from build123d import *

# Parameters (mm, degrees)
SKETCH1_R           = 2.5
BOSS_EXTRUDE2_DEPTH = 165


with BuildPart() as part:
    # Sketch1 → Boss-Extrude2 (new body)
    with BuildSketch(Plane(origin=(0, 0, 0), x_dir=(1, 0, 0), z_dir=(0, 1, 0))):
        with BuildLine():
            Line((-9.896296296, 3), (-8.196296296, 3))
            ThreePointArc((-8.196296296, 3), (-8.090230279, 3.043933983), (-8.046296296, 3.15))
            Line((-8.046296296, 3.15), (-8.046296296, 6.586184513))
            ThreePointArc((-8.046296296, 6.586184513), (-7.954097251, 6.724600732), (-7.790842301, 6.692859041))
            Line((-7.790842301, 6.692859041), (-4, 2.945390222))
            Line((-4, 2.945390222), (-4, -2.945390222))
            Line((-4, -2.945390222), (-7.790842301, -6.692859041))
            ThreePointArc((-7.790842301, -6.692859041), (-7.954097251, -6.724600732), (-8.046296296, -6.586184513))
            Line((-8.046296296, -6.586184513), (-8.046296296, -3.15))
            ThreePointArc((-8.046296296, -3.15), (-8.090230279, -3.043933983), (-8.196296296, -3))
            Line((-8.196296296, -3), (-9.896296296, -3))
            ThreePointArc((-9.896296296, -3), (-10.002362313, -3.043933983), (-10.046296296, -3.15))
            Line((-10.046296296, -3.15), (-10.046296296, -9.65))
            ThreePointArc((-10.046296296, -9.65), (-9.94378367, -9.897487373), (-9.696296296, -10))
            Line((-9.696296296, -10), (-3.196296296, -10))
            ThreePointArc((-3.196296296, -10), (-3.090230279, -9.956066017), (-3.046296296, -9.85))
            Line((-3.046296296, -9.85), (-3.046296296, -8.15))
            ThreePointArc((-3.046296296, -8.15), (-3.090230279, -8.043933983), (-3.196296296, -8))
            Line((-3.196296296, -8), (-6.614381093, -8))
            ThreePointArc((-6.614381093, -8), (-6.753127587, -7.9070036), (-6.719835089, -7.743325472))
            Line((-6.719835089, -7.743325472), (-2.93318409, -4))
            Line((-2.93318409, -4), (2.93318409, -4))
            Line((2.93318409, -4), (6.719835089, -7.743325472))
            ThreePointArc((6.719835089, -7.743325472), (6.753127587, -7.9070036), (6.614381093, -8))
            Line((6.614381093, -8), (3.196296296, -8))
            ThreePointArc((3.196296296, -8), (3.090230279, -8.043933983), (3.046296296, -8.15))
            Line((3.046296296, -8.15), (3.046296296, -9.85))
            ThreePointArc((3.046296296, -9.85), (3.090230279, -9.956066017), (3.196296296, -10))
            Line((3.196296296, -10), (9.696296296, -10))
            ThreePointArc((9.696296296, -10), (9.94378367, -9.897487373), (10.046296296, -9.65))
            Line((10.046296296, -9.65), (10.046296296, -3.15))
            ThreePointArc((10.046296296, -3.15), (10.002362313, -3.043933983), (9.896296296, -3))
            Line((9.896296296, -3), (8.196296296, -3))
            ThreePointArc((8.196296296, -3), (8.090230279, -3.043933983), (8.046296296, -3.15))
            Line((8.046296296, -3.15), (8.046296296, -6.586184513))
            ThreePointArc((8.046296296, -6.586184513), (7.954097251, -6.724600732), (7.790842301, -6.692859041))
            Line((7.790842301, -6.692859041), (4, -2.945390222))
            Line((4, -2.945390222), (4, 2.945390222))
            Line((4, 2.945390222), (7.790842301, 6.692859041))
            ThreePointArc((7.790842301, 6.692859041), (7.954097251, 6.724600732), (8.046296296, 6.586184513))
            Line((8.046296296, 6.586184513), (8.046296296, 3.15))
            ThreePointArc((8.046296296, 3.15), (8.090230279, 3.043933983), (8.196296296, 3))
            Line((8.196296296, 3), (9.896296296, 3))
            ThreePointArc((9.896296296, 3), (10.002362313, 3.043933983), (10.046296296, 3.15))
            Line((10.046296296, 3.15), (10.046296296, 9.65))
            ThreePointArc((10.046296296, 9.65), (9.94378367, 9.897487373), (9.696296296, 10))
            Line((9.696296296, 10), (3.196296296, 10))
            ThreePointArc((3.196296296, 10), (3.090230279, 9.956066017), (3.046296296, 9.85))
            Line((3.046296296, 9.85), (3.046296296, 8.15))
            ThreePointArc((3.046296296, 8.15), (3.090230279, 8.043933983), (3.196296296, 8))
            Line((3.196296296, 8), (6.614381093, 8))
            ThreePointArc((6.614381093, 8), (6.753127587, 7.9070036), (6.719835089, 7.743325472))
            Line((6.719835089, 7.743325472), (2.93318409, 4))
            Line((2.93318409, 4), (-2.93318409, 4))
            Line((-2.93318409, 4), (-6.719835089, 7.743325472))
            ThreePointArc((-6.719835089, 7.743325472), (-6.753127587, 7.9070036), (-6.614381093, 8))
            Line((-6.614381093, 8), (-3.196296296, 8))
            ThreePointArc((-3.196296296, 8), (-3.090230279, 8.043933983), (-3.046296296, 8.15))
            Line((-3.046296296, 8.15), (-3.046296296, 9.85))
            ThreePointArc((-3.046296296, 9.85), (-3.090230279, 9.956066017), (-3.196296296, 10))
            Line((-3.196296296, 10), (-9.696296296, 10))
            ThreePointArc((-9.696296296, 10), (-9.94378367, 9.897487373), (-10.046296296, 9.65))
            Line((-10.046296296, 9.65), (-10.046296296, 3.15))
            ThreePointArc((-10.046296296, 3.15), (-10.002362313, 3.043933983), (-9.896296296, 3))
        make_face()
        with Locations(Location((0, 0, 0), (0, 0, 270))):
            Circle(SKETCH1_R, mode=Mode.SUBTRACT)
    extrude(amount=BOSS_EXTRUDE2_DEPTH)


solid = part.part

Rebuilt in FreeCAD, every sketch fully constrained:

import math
import FreeCAD as App
import Part
import Sketcher
Q = App.Units.Quantity

doc = App.newDocument("Part")
body = doc.addObject("PartDesign::Body", "Body")

sketch1 = body.newObject("Sketcher::SketchObject", "Sketch")
sketch1.AttachmentSupport = (doc.getObject("XZ_Plane"), [""])
sketch1.MapMode = "FlatFace"
sketch1.addGeometry(Part.LineSegment(App.Vector(-9.896296, -3, 0), App.Vector(-8.196296, -3, 0)), False)
sketch1.addGeometry(Part.ArcOfCircle(Part.Circle(App.Vector(-8.196296, -3.15, 0), App.Vector(0, 0, 1), 0.15), math.radians(0), math.radians(90)), False)
sketch1.addGeometry(Part.LineSegment(App.Vector(-8.046296, -3.15, 0), App.Vector(-8.046296, -6.586185, 0)), False)
sketch1.addGeometry(Part.ArcOfCircle(Part.Circle(App.Vector(-7.896296, -6.586185, 0), App.Vector(0, 0, 1), 0.15), math.radians(180), math.radians(314.670338)), False)
sketch1.addGeometry(Part.LineSegment(App.Vector(-7.790842, -6.692859, 0), App.Vector(-4, -2.94539, 0)), False)
sketch1.addGeometry(Part.LineSegment(App.Vector(-4, -2.94539, 0), App.Vector(-4, 2.94539, 0)), False)
sketch1.addGeometry(Part.LineSegment(App.Vector(-4, 2.94539, 0), App.Vector(-7.790842, 6.692859, 0)), False)
sketch1.addGeometry(Part.ArcOfCircle(Part.Circle(App.Vector(-7.896296, 6.586185, 0), App.Vector(0, 0, 1), 0.15), math.radians(45.329662), math.radians(180)), False)
sketch1.addGeometry(Part.LineSegment(App.Vector(-8.046296, 6.586185, 0), App.Vector(-8.046296, 3.15, 0)), False)
sketch1.addGeometry(Part.ArcOfCircle(Part.Circle(App.Vector(-8.196296, 3.15, 0), App.Vector(0, 0, 1), 0.15), math.radians(-90), math.radians(0)), False)
sketch1.addGeometry(Part.LineSegment(App.Vector(-8.196296, 3, 0), App.Vector(-9.896296, 3, 0)), False)
sketch1.addGeometry(Part.ArcOfCircle(Part.Circle(App.Vector(-9.896296, 3.15, 0), App.Vector(0, 0, 1), 0.15), math.radians(-180), math.radians(-90)), False)
sketch1.addGeometry(Part.LineSegment(App.Vector(-10.046296, 3.15, 0), App.Vector(-10.046296, 9.65, 0)), False)
sketch1.addGeometry(Part.ArcOfCircle(Part.Circle(App.Vector(-9.696296, 9.65, 0), App.Vector(0, 0, 1), 0.35), math.radians(90), math.radians(180)), False)
sketch1.addGeometry(Part.LineSegment(App.Vector(-9.696296, 10, 0), App.Vector(-3.196296, 10, 0)), False)
sketch1.addGeometry(Part.ArcOfCircle(Part.Circle(App.Vector(-3.196296, 9.85, 0), App.Vector(0, 0, 1), 0.15), math.radians(0), math.radians(90)), False)
sketch1.addGeometry(Part.LineSegment(App.Vector(-3.046296, 9.85, 0), App.Vector(-3.046296, 8.15, 0)), False)
sketch1.addGeometry(Part.ArcOfCircle(Part.Circle(App.Vector(-3.196296, 8.15, 0), App.Vector(0, 0, 1), 0.15), math.radians(-90), math.radians(0)), False)
sketch1.addGeometry(Part.LineSegment(App.Vector(-3.196296, 8, 0), App.Vector(-6.614381, 8, 0)), False)
sketch1.addGeometry(Part.ArcOfCircle(Part.Circle(App.Vector(-6.614381, 7.85, 0), App.Vector(0, 0, 1), 0.15), math.radians(90), math.radians(225.329661)), False)
sketch1.addGeometry(Part.LineSegment(App.Vector(-6.719835, 7.743325, 0), App.Vector(-2.933184, 4, 0)), False)
sketch1.addGeometry(Part.LineSegment(App.Vector(-2.933184, 4, 0), App.Vector(2.933184, 4, 0)), False)
sketch1.addGeometry(Part.LineSegment(App.Vector(2.933184, 4, 0), App.Vector(6.719835, 7.743325, 0)), False)
sketch1.addGeometry(Part.ArcOfCircle(Part.Circle(App.Vector(6.614381, 7.85, 0), App.Vector(0, 0, 1), 0.15), math.radians(-45.329661), math.radians(90)), False)
sketch1.addGeometry(Part.LineSegment(App.Vector(6.614381, 8, 0), App.Vector(3.196296, 8, 0)), False)
sketch1.addGeometry(Part.ArcOfCircle(Part.Circle(App.Vector(3.196296, 8.15, 0), App.Vector(0, 0, 1), 0.15), math.radians(-180), math.radians(-90)), False)
sketch1.addGeometry(Part.LineSegment(App.Vector(3.046296, 8.15, 0), App.Vector(3.046296, 9.85, 0)), False)
sketch1.addGeometry(Part.ArcOfCircle(Part.Circle(App.Vector(3.196296, 9.85, 0), App.Vector(0, 0, 1), 0.15), math.radians(90), math.radians(180)), False)
sketch1.addGeometry(Part.LineSegment(App.Vector(3.196296, 10, 0), App.Vector(9.696296, 10, 0)), False)
sketch1.addGeometry(Part.ArcOfCircle(Part.Circle(App.Vector(9.696296, 9.65, 0), App.Vector(0, 0, 1), 0.35), math.radians(0), math.radians(90)), False)
sketch1.addGeometry(Part.LineSegment(App.Vector(10.046296, 9.65, 0), App.Vector(10.046296, 3.15, 0)), False)
sketch1.addGeometry(Part.ArcOfCircle(Part.Circle(App.Vector(9.896296, 3.15, 0), App.Vector(0, 0, 1), 0.15), math.radians(-90), math.radians(0)), False)
sketch1.addGeometry(Part.LineSegment(App.Vector(9.896296, 3, 0), App.Vector(8.196296, 3, 0)), False)
sketch1.addGeometry(Part.ArcOfCircle(Part.Circle(App.Vector(8.196296, 3.15, 0), App.Vector(0, 0, 1), 0.15), math.radians(-180), math.radians(-90)), False)
sketch1.addGeometry(Part.LineSegment(App.Vector(8.046296, 3.15, 0), App.Vector(8.046296, 6.586185, 0)), False)
sketch1.addGeometry(Part.ArcOfCircle(Part.Circle(App.Vector(7.896296, 6.586185, 0), App.Vector(0, 0, 1), 0.15), math.radians(0), math.radians(134.670338)), False)
sketch1.addGeometry(Part.LineSegment(App.Vector(7.790842, 6.692859, 0), App.Vector(4, 2.94539, 0)), False)
sketch1.addGeometry(Part.LineSegment(App.Vector(4, 2.94539, 0), App.Vector(4, -2.94539, 0)), False)
sketch1.addGeometry(Part.LineSegment(App.Vector(4, -2.94539, 0), App.Vector(7.790842, -6.692859, 0)), False)
sketch1.addGeometry(Part.ArcOfCircle(Part.Circle(App.Vector(7.896296, -6.586185, 0), App.Vector(0, 0, 1), 0.15), math.radians(-134.670338), math.radians(0)), False)
sketch1.addGeometry(Part.LineSegment(App.Vector(8.046296, -6.586185, 0), App.Vector(8.046296, -3.15, 0)), False)
sketch1.addGeometry(Part.ArcOfCircle(Part.Circle(App.Vector(8.196296, -3.15, 0), App.Vector(0, 0, 1), 0.15), math.radians(90), math.radians(180)), False)
sketch1.addGeometry(Part.LineSegment(App.Vector(8.196296, -3, 0), App.Vector(9.896296, -3, 0)), False)
sketch1.addGeometry(Part.ArcOfCircle(Part.Circle(App.Vector(9.896296, -3.15, 0), App.Vector(0, 0, 1), 0.15), math.radians(0), math.radians(90)), False)
sketch1.addGeometry(Part.LineSegment(App.Vector(10.046296, -3.15, 0), App.Vector(10.046296, -9.65, 0)), False)
sketch1.addGeometry(Part.ArcOfCircle(Part.Circle(App.Vector(9.696296, -9.65, 0), App.Vector(0, 0, 1), 0.35), math.radians(-90), math.radians(0)), False)
sketch1.addGeometry(Part.LineSegment(App.Vector(9.696296, -10, 0), App.Vector(3.196296, -10, 0)), False)
sketch1.addGeometry(Part.ArcOfCircle(Part.Circle(App.Vector(3.196296, -9.85, 0), App.Vector(0, 0, 1), 0.15), math.radians(-180), math.radians(-90)), False)
sketch1.addGeometry(Part.LineSegment(App.Vector(3.046296, -9.85, 0), App.Vector(3.046296, -8.15, 0)), False)
sketch1.addGeometry(Part.ArcOfCircle(Part.Circle(App.Vector(3.196296, -8.15, 0), App.Vector(0, 0, 1), 0.15), math.radians(90), math.radians(180)), False)
sketch1.addGeometry(Part.LineSegment(App.Vector(3.196296, -8, 0), App.Vector(6.614381, -8, 0)), False)
sketch1.addGeometry(Part.ArcOfCircle(Part.Circle(App.Vector(6.614381, -7.85, 0), App.Vector(0, 0, 1), 0.15), math.radians(-90), math.radians(45.329661)), False)
sketch1.addGeometry(Part.LineSegment(App.Vector(6.719835, -7.743325, 0), App.Vector(2.933184, -4, 0)), False)
sketch1.addGeometry(Part.LineSegment(App.Vector(2.933184, -4, 0), App.Vector(-2.933184, -4, 0)), False)
sketch1.addGeometry(Part.LineSegment(App.Vector(-2.933184, -4, 0), App.Vector(-6.719835, -7.743325, 0)), False)
sketch1.addGeometry(Part.ArcOfCircle(Part.Circle(App.Vector(-6.614381, -7.85, 0), App.Vector(0, 0, 1), 0.15), math.radians(134.670339), math.radians(270)), False)
sketch1.addGeometry(Part.LineSegment(App.Vector(-6.614381, -8, 0), App.Vector(-3.196296, -8, 0)), False)
sketch1.addGeometry(Part.ArcOfCircle(Part.Circle(App.Vector(-3.196296, -8.15, 0), App.Vector(0, 0, 1), 0.15), math.radians(0), math.radians(90)), False)
sketch1.addGeometry(Part.LineSegment(App.Vector(-3.046296, -8.15, 0), App.Vector(-3.046296, -9.85, 0)), False)
sketch1.addGeometry(Part.ArcOfCircle(Part.Circle(App.Vector(-3.196296, -9.85, 0), App.Vector(0, 0, 1), 0.15), math.radians(-90), math.radians(0)), False)
sketch1.addGeometry(Part.LineSegment(App.Vector(-3.196296, -10, 0), App.Vector(-9.696296, -10, 0)), False)
sketch1.addGeometry(Part.ArcOfCircle(Part.Circle(App.Vector(-9.696296, -9.65, 0), App.Vector(0, 0, 1), 0.35), math.radians(180), math.radians(270)), False)
sketch1.addGeometry(Part.LineSegment(App.Vector(-10.046296, -9.65, 0), App.Vector(-10.046296, -3.15, 0)), False)
sketch1.addGeometry(Part.ArcOfCircle(Part.Circle(App.Vector(-9.896296, -3.15, 0), App.Vector(0, 0, 1), 0.15), math.radians(90), math.radians(180)), False)
sketch1.addGeometry(Part.Circle(App.Vector(0, 0, 0), App.Vector(0, 0, 1), 2.5), False)
sketch1.addConstraint(Sketcher.Constraint("Tangent", 0, 2, 1, 2))
sketch1.addConstraint(Sketcher.Constraint("Tangent", 1, 1, 2, 1))
sketch1.addConstraint(Sketcher.Constraint("Tangent", 2, 2, 3, 1))
sketch1.addConstraint(Sketcher.Constraint("Tangent", 3, 2, 4, 1))
sketch1.addConstraint(Sketcher.Constraint("Coincident", 4, 2, 5, 1))
sketch1.addConstraint(Sketcher.Constraint("Coincident", 5, 2, 6, 1))
sketch1.addConstraint(Sketcher.Constraint("Tangent", 6, 2, 7, 1))
sketch1.addConstraint(Sketcher.Constraint("Tangent", 7, 2, 8, 1))
sketch1.addConstraint(Sketcher.Constraint("Tangent", 8, 2, 9, 2))
sketch1.addConstraint(Sketcher.Constraint("Tangent", 9, 1, 10, 1))
sketch1.addConstraint(Sketcher.Constraint("Tangent", 10, 2, 11, 2))
sketch1.addConstraint(Sketcher.Constraint("Tangent", 11, 1, 12, 1))
sketch1.addConstraint(Sketcher.Constraint("Tangent", 12, 2, 13, 2))
sketch1.addConstraint(Sketcher.Constraint("Tangent", 13, 1, 14, 1))
sketch1.addConstraint(Sketcher.Constraint("Tangent", 14, 2, 15, 2))
sketch1.addConstraint(Sketcher.Constraint("Tangent", 15, 1, 16, 1))
sketch1.addConstraint(Sketcher.Constraint("Tangent", 16, 2, 17, 2))
sketch1.addConstraint(Sketcher.Constraint("Tangent", 17, 1, 18, 1))
sketch1.addConstraint(Sketcher.Constraint("Tangent", 18, 2, 19, 1))
sketch1.addConstraint(Sketcher.Constraint("Tangent", 19, 2, 20, 1))
sketch1.addConstraint(Sketcher.Constraint("Coincident", 20, 2, 21, 1))
sketch1.addConstraint(Sketcher.Constraint("Coincident", 21, 2, 22, 1))
sketch1.addConstraint(Sketcher.Constraint("Tangent", 22, 2, 23, 1))
sketch1.addConstraint(Sketcher.Constraint("Tangent", 23, 2, 24, 1))
sketch1.addConstraint(Sketcher.Constraint("Tangent", 24, 2, 25, 2))
sketch1.addConstraint(Sketcher.Constraint("Tangent", 25, 1, 26, 1))
sketch1.addConstraint(Sketcher.Constraint("Tangent", 26, 2, 27, 2))
sketch1.addConstraint(Sketcher.Constraint("Tangent", 27, 1, 28, 1))
sketch1.addConstraint(Sketcher.Constraint("Tangent", 28, 2, 29, 2))
sketch1.addConstraint(Sketcher.Constraint("Tangent", 29, 1, 30, 1))
sketch1.addConstraint(Sketcher.Constraint("Tangent", 30, 2, 31, 2))
sketch1.addConstraint(Sketcher.Constraint("Tangent", 31, 1, 32, 1))
sketch1.addConstraint(Sketcher.Constraint("Tangent", 32, 2, 33, 2))
sketch1.addConstraint(Sketcher.Constraint("Tangent", 33, 1, 34, 1))
sketch1.addConstraint(Sketcher.Constraint("Tangent", 34, 2, 35, 1))
sketch1.addConstraint(Sketcher.Constraint("Tangent", 35, 2, 36, 1))
sketch1.addConstraint(Sketcher.Constraint("Coincident", 36, 2, 37, 1))
sketch1.addConstraint(Sketcher.Constraint("Coincident", 37, 2, 38, 1))
sketch1.addConstraint(Sketcher.Constraint("Tangent", 38, 2, 39, 1))
sketch1.addConstraint(Sketcher.Constraint("Tangent", 39, 2, 40, 1))
sketch1.addConstraint(Sketcher.Constraint("Tangent", 40, 2, 41, 2))
sketch1.addConstraint(Sketcher.Constraint("Tangent", 41, 1, 42, 1))
sketch1.addConstraint(Sketcher.Constraint("Tangent", 42, 2, 43, 2))
sketch1.addConstraint(Sketcher.Constraint("Tangent", 43, 1, 44, 1))
sketch1.addConstraint(Sketcher.Constraint("Tangent", 44, 2, 45, 2))
sketch1.addConstraint(Sketcher.Constraint("Tangent", 45, 1, 46, 1))
sketch1.addConstraint(Sketcher.Constraint("Tangent", 46, 2, 47, 2))
sketch1.addConstraint(Sketcher.Constraint("Tangent", 47, 1, 48, 1))
sketch1.addConstraint(Sketcher.Constraint("Tangent", 48, 2, 49, 2))
sketch1.addConstraint(Sketcher.Constraint("Tangent", 49, 1, 50, 1))
sketch1.addConstraint(Sketcher.Constraint("Tangent", 50, 2, 51, 1))
sketch1.addConstraint(Sketcher.Constraint("Tangent", 51, 2, 52, 1))
sketch1.addConstraint(Sketcher.Constraint("Coincident", 52, 2, 53, 1))
sketch1.addConstraint(Sketcher.Constraint("Coincident", 53, 2, 54, 1))
sketch1.addConstraint(Sketcher.Constraint("Tangent", 54, 2, 55, 1))
sketch1.addConstraint(Sketcher.Constraint("Tangent", 55, 2, 56, 1))
sketch1.addConstraint(Sketcher.Constraint("Tangent", 56, 2, 57, 2))
sketch1.addConstraint(Sketcher.Constraint("Tangent", 57, 1, 58, 1))
sketch1.addConstraint(Sketcher.Constraint("Tangent", 58, 2, 59, 2))
sketch1.addConstraint(Sketcher.Constraint("Tangent", 59, 1, 60, 1))
sketch1.addConstraint(Sketcher.Constraint("Tangent", 60, 2, 61, 2))
sketch1.addConstraint(Sketcher.Constraint("Tangent", 61, 1, 62, 1))
sketch1.addConstraint(Sketcher.Constraint("Tangent", 62, 2, 63, 2))
sketch1.addConstraint(Sketcher.Constraint("Tangent", 63, 1, 0, 1))
sketch1.addConstraint(Sketcher.Constraint("Horizontal", 0))
sketch1.addConstraint(Sketcher.Constraint("Vertical", 2))
sketch1.addConstraint(Sketcher.Constraint("Vertical", 5))
sketch1.addConstraint(Sketcher.Constraint("Vertical", 8))
sketch1.addConstraint(Sketcher.Constraint("Horizontal", 10))
sketch1.addConstraint(Sketcher.Constraint("Vertical", 12))
sketch1.addConstraint(Sketcher.Constraint("Horizontal", 14))
sketch1.addConstraint(Sketcher.Constraint("Vertical", 16))
sketch1.addConstraint(Sketcher.Constraint("Horizontal", 18))
sketch1.addConstraint(Sketcher.Constraint("Horizontal", 21))
sketch1.addConstraint(Sketcher.Constraint("Horizontal", 24))
sketch1.addConstraint(Sketcher.Constraint("Vertical", 26))
sketch1.addConstraint(Sketcher.Constraint("Horizontal", 28))
sketch1.addConstraint(Sketcher.Constraint("Vertical", 30))
sketch1.addConstraint(Sketcher.Constraint("Horizontal", 32))
sketch1.addConstraint(Sketcher.Constraint("Vertical", 34))
sketch1.addConstraint(Sketcher.Constraint("Vertical", 37))
sketch1.addConstraint(Sketcher.Constraint("Vertical", 40))
sketch1.addConstraint(Sketcher.Constraint("Horizontal", 42))
sketch1.addConstraint(Sketcher.Constraint("Vertical", 44))
sketch1.addConstraint(Sketcher.Constraint("Horizontal", 46))
sketch1.addConstraint(Sketcher.Constraint("Vertical", 48))
sketch1.addConstraint(Sketcher.Constraint("Horizontal", 50))
sketch1.addConstraint(Sketcher.Constraint("Horizontal", 53))
sketch1.addConstraint(Sketcher.Constraint("Horizontal", 56))
sketch1.addConstraint(Sketcher.Constraint("Vertical", 58))
sketch1.addConstraint(Sketcher.Constraint("Horizontal", 60))
sketch1.addConstraint(Sketcher.Constraint("Vertical", 62))
sketch1.addConstraint(Sketcher.Constraint("Coincident", 64, 3, -1, 1))
sketch1.addConstraint(Sketcher.Constraint("Equal", 1, 3))
sketch1.addConstraint(Sketcher.Constraint("Equal", 3, 7))
sketch1.addConstraint(Sketcher.Constraint("Equal", 7, 9))
sketch1.addConstraint(Sketcher.Constraint("Equal", 9, 11))
sketch1.addConstraint(Sketcher.Constraint("Equal", 11, 15))
sketch1.addConstraint(Sketcher.Constraint("Equal", 15, 17))
sketch1.addConstraint(Sketcher.Constraint("Equal", 17, 19))
sketch1.addConstraint(Sketcher.Constraint("Equal", 19, 23))
sketch1.addConstraint(Sketcher.Constraint("Equal", 23, 25))
sketch1.addConstraint(Sketcher.Constraint("Equal", 25, 27))
sketch1.addConstraint(Sketcher.Constraint("Equal", 13, 29))
sketch1.addConstraint(Sketcher.Constraint("Equal", 27, 31))
sketch1.addConstraint(Sketcher.Constraint("Equal", 31, 33))
sketch1.addConstraint(Sketcher.Constraint("Equal", 33, 35))
sketch1.addConstraint(Sketcher.Constraint("Equal", 35, 39))
sketch1.addConstraint(Sketcher.Constraint("Equal", 39, 41))
sketch1.addConstraint(Sketcher.Constraint("Equal", 41, 43))
sketch1.addConstraint(Sketcher.Constraint("Equal", 29, 45))
sketch1.addConstraint(Sketcher.Constraint("Equal", 43, 47))
sketch1.addConstraint(Sketcher.Constraint("Equal", 47, 49))
sketch1.addConstraint(Sketcher.Constraint("Equal", 49, 51))
sketch1.addConstraint(Sketcher.Constraint("Equal", 51, 55))
sketch1.addConstraint(Sketcher.Constraint("Equal", 55, 57))
sketch1.addConstraint(Sketcher.Constraint("Equal", 57, 59))
sketch1.addConstraint(Sketcher.Constraint("Equal", 45, 61))
sketch1.addConstraint(Sketcher.Constraint("Equal", 59, 63))
sketch1.addConstraint(Sketcher.Constraint("Symmetric", 1, 3, 33, 3, -1, 1))
sketch1.addConstraint(Sketcher.Constraint("Symmetric", 7, 3, 39, 3, -1, 1))
sketch1.addConstraint(Sketcher.Constraint("Symmetric", 11, 3, 43, 3, -1, 1))
sketch1.addConstraint(Sketcher.Constraint("Symmetric", 15, 3, 47, 3, -1, 1))
sketch1.addConstraint(Sketcher.Constraint("Symmetric", 19, 3, 51, 3, -1, 1))
sketch1.addConstraint(Sketcher.Constraint("Symmetric", 23, 3, 55, 3, -1, 1))
sketch1.addConstraint(Sketcher.Constraint("Symmetric", 27, 3, 59, 3, -1, 1))
sketch1.addConstraint(Sketcher.Constraint("Symmetric", 3, 2, 35, 2, -1, 1))
sketch1.addConstraint(Sketcher.Constraint("Symmetric", 5, 2, 37, 2, -1, 1))
sketch1.addConstraint(Sketcher.Constraint("Symmetric", 20, 2, 52, 2, -1, 1))
sketch1.addConstraint(Sketcher.Constraint("Symmetric", 19, 3, 23, 3, -2))
sketch1.addConstraint(Sketcher.Constraint("Symmetric", 15, 3, 27, 3, -2))
sketch1.addConstraint(Sketcher.Constraint("Symmetric", 11, 3, 31, 3, -2))
sketch1.addConstraint(Sketcher.Constraint("Symmetric", 7, 3, 35, 3, -2))
sketch1.addConstraint(Sketcher.Constraint("Parallel", 6, 20))
sketch1.addConstraint(Sketcher.Constraint("Parallel", 4, 22))
sketch1.addConstraint(Sketcher.Constraint("Parallel", 36, 54))
sketch1.addConstraint(Sketcher.Constraint("Horizontal", 19, 2, 22, 2))
sketch1.addConstraint(Sketcher.Constraint("Vertical", 13, 3, 61, 3))
sketch1.addConstraint(Sketcher.Constraint("Equal", 60, 12))
sketch1.addConstraint(Sketcher.Constraint("Equal", 42, 16))
sketch1.addConstraint(Sketcher.Constraint("Diameter", 64, Q("5 mm")))
sketch1.addConstraint(Sketcher.Constraint("Radius", 1, Q("0.15 mm")))
sketch1.addConstraint(Sketcher.Constraint("Radius", 13, Q("0.35 mm")))
sketch1.addConstraint(Sketcher.Constraint("DistanceX", 0, 1, 0, 2, Q("1.7 mm")))
sketch1.addConstraint(Sketcher.Constraint("DistanceX", 14, 1, 14, 2, Q("6.5 mm")))
sketch1.addConstraint(Sketcher.Constraint("DistanceY", 0, 2, -1, 1, Q("3 mm")))
sketch1.addConstraint(Sketcher.Constraint("DistanceX", 4, 2, -1, 1, Q("4 mm")))
sketch1.addConstraint(Sketcher.Constraint("DistanceY", -1, 1, 20, 2, Q("4 mm")))
sketch1.addConstraint(Sketcher.Constraint("DistanceX", 21, 1, 21, 2, Q("5.866368 mm")))
sketch1.addConstraint(Sketcher.Constraint("DistanceY", 5, 1, 5, 2, Q("5.89078 mm")))
sketch1.addConstraint(Sketcher.Constraint("Distance", 4, Q("5.330479 mm")))
sketch1.addConstraint(Sketcher.Constraint("DistanceX", 18, 2, 18, 1, Q("3.418085 mm")))
pad1 = body.newObject("PartDesign::Pad", "Pad")
pad1.Profile = sketch1
pad1.Length = 165
pad1.Reversed = True

doc.recompute()
